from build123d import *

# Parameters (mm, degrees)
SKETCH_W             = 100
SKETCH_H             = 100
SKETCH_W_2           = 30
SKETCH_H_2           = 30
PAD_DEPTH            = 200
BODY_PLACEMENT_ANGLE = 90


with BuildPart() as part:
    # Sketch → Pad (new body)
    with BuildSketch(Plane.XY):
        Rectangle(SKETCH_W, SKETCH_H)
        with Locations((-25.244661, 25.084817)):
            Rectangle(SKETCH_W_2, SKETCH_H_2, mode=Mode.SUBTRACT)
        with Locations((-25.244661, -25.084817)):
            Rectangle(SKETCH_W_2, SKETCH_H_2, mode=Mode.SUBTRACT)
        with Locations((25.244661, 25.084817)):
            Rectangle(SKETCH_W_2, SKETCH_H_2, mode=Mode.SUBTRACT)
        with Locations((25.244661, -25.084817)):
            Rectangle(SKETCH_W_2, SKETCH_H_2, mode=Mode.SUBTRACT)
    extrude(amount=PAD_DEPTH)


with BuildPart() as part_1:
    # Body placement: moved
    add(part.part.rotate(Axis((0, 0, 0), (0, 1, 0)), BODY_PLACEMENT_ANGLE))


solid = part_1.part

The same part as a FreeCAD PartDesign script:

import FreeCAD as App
import Part
import Sketcher

V = App.Vector


def add_polygon(sketch, points):
    """Adds a closed chain of lines whose ends are joined by coincident constraints."""
    first, n = sketch.GeometryCount, len(points)
    for a, b in zip(points, points[1:] + points[:1]):
        sketch.addGeometry(Part.LineSegment(App.Vector(*a, 0), App.Vector(*b, 0)), False)
    for i in range(n):
        sketch.addConstraint(Sketcher.Constraint("Coincident", first + i, 2, first + (i + 1) % n, 1))

doc = App.newDocument("Part")
params = doc.addObject("Spreadsheet::Sheet", "Params")
for row, (alias, value) in enumerate([
    ("sketch1_width", "100 mm"),
    ("sketch1_width2", "30 mm"),
    ("pad1_length", "200 mm"),
], start=1):
    params.set(f"A{row}", alias)
    params.set(f"B{row}", "=" + value)
    params.setAlias(f"B{row}", alias)

body = doc.addObject("PartDesign::Body", "Body")

sketch1 = body.newObject("Sketcher::SketchObject", "Sketch")
sketch1.AttachmentSupport = (doc.getObject("XY_Plane"), [""])
sketch1.MapMode = "FlatFace"
add_polygon(sketch1, [(-50, 50), (-50, -50), (50, -50), (50, 50)])
add_polygon(sketch1, [(-10.244661, -40.084817), (-40.244661, -40.084817), (-40.244661, -10.084817), (-10.244661, -10.084817)])
add_polygon(sketch1, [(40.244661, -40.084817), (10.244661, -40.084817), (10.244661, -10.084817), (40.244661, -10.084817)])
add_polygon(sketch1, [(-10.244661, 10.084817), (-40.244661, 10.084817), (-40.244661, 40.084817), (-10.244661, 40.084817)])
add_polygon(sketch1, [(40.244661, 10.084817), (10.244661, 10.084817), (10.244661, 40.084817), (40.244661, 40.084817)])
sketch1.addConstraint(Sketcher.Constraint("Vertical", 0))
sketch1.addConstraint(Sketcher.Constraint("Horizontal", 1))
sketch1.addConstraint(Sketcher.Constraint("Vertical", 2))
sketch1.addConstraint(Sketcher.Constraint("Horizontal", 3))
sketch1.addConstraint(Sketcher.Constraint("Horizontal", 4))
sketch1.addConstraint(Sketcher.Constraint("Vertical", 5))
sketch1.addConstraint(Sketcher.Constraint("Horizontal", 6))
sketch1.addConstraint(Sketcher.Constraint("Vertical", 7))
sketch1.addConstraint(Sketcher.Constraint("Horizontal", 8))
sketch1.addConstraint(Sketcher.Constraint("Vertical", 9))
sketch1.addConstraint(Sketcher.Constraint("Horizontal", 10))
sketch1.addConstraint(Sketcher.Constraint("Vertical", 11))
sketch1.addConstraint(Sketcher.Constraint("Horizontal", 12))
sketch1.addConstraint(Sketcher.Constraint("Vertical", 13))
sketch1.addConstraint(Sketcher.Constraint("Horizontal", 14))
sketch1.addConstraint(Sketcher.Constraint("Vertical", 15))
sketch1.addConstraint(Sketcher.Constraint("Horizontal", 16))
sketch1.addConstraint(Sketcher.Constraint("Vertical", 17))
sketch1.addConstraint(Sketcher.Constraint("Horizontal", 18))
sketch1.addConstraint(Sketcher.Constraint("Vertical", 19))
sketch1.addConstraint(Sketcher.Constraint("Symmetric", 0, 2, 2, 2, -1, 1))
sketch1.addConstraint(Sketcher.Constraint("Symmetric", 10, 2, 12, 2, -1, 1))
sketch1.addConstraint(Sketcher.Constraint("Symmetric", 8, 2, 14, 2, -1, 1))
sketch1.addConstraint(Sketcher.Constraint("Symmetric", 6, 2, 16, 2, -1, 1))
sketch1.addConstraint(Sketcher.Constraint("Symmetric", 4, 2, 18, 2, -1, 1))
sketch1.addConstraint(Sketcher.Constraint("Symmetric", 7, 2, 8, 2, -2))
sketch1.addConstraint(Sketcher.Constraint("Symmetric", 5, 2, 10, 2, -2))
sketch1.addConstraint(Sketcher.Constraint("Equal", 3, 0))
sketch1.addConstraint(Sketcher.Constraint("Equal", 18, 5))
sketch1.addConstraint(Sketcher.Constraint("DistanceX", 1, 1, 1, 2, 100.0))
sketch1.addConstraint(Sketcher.Constraint("DistanceX", 4, 2, 4, 1, 30.0))
sketch1.addConstraint(Sketcher.Constraint("DistanceX", 4, 2, -1, 1, 40.244661))
sketch1.addConstraint(Sketcher.Constraint("DistanceY", 4, 2, -1, 1, 40.084817))
sketch1.setExpression("Constraints[49]", "Params.sketch1_width")
sketch1.setExpression("Constraints[50]", "Params.sketch1_width2")
pad1 = body.newObject("PartDesign::Pad", "Pad")
pad1.Profile = sketch1
pad1.setExpression("Length", "Params.pad1_length")
body2 = doc.addObject("PartDesign::Body", "Body001")
doc.recompute()

body.Placement = App.Placement(V(0, 0, 0), App.Rotation(V(0, 1, 0), 90))
boolean = body2.newObject("PartDesign::Boolean", "Boolean")
boolean.Type = "Fuse"
boolean.addObjects([body])

doc.recompute()
